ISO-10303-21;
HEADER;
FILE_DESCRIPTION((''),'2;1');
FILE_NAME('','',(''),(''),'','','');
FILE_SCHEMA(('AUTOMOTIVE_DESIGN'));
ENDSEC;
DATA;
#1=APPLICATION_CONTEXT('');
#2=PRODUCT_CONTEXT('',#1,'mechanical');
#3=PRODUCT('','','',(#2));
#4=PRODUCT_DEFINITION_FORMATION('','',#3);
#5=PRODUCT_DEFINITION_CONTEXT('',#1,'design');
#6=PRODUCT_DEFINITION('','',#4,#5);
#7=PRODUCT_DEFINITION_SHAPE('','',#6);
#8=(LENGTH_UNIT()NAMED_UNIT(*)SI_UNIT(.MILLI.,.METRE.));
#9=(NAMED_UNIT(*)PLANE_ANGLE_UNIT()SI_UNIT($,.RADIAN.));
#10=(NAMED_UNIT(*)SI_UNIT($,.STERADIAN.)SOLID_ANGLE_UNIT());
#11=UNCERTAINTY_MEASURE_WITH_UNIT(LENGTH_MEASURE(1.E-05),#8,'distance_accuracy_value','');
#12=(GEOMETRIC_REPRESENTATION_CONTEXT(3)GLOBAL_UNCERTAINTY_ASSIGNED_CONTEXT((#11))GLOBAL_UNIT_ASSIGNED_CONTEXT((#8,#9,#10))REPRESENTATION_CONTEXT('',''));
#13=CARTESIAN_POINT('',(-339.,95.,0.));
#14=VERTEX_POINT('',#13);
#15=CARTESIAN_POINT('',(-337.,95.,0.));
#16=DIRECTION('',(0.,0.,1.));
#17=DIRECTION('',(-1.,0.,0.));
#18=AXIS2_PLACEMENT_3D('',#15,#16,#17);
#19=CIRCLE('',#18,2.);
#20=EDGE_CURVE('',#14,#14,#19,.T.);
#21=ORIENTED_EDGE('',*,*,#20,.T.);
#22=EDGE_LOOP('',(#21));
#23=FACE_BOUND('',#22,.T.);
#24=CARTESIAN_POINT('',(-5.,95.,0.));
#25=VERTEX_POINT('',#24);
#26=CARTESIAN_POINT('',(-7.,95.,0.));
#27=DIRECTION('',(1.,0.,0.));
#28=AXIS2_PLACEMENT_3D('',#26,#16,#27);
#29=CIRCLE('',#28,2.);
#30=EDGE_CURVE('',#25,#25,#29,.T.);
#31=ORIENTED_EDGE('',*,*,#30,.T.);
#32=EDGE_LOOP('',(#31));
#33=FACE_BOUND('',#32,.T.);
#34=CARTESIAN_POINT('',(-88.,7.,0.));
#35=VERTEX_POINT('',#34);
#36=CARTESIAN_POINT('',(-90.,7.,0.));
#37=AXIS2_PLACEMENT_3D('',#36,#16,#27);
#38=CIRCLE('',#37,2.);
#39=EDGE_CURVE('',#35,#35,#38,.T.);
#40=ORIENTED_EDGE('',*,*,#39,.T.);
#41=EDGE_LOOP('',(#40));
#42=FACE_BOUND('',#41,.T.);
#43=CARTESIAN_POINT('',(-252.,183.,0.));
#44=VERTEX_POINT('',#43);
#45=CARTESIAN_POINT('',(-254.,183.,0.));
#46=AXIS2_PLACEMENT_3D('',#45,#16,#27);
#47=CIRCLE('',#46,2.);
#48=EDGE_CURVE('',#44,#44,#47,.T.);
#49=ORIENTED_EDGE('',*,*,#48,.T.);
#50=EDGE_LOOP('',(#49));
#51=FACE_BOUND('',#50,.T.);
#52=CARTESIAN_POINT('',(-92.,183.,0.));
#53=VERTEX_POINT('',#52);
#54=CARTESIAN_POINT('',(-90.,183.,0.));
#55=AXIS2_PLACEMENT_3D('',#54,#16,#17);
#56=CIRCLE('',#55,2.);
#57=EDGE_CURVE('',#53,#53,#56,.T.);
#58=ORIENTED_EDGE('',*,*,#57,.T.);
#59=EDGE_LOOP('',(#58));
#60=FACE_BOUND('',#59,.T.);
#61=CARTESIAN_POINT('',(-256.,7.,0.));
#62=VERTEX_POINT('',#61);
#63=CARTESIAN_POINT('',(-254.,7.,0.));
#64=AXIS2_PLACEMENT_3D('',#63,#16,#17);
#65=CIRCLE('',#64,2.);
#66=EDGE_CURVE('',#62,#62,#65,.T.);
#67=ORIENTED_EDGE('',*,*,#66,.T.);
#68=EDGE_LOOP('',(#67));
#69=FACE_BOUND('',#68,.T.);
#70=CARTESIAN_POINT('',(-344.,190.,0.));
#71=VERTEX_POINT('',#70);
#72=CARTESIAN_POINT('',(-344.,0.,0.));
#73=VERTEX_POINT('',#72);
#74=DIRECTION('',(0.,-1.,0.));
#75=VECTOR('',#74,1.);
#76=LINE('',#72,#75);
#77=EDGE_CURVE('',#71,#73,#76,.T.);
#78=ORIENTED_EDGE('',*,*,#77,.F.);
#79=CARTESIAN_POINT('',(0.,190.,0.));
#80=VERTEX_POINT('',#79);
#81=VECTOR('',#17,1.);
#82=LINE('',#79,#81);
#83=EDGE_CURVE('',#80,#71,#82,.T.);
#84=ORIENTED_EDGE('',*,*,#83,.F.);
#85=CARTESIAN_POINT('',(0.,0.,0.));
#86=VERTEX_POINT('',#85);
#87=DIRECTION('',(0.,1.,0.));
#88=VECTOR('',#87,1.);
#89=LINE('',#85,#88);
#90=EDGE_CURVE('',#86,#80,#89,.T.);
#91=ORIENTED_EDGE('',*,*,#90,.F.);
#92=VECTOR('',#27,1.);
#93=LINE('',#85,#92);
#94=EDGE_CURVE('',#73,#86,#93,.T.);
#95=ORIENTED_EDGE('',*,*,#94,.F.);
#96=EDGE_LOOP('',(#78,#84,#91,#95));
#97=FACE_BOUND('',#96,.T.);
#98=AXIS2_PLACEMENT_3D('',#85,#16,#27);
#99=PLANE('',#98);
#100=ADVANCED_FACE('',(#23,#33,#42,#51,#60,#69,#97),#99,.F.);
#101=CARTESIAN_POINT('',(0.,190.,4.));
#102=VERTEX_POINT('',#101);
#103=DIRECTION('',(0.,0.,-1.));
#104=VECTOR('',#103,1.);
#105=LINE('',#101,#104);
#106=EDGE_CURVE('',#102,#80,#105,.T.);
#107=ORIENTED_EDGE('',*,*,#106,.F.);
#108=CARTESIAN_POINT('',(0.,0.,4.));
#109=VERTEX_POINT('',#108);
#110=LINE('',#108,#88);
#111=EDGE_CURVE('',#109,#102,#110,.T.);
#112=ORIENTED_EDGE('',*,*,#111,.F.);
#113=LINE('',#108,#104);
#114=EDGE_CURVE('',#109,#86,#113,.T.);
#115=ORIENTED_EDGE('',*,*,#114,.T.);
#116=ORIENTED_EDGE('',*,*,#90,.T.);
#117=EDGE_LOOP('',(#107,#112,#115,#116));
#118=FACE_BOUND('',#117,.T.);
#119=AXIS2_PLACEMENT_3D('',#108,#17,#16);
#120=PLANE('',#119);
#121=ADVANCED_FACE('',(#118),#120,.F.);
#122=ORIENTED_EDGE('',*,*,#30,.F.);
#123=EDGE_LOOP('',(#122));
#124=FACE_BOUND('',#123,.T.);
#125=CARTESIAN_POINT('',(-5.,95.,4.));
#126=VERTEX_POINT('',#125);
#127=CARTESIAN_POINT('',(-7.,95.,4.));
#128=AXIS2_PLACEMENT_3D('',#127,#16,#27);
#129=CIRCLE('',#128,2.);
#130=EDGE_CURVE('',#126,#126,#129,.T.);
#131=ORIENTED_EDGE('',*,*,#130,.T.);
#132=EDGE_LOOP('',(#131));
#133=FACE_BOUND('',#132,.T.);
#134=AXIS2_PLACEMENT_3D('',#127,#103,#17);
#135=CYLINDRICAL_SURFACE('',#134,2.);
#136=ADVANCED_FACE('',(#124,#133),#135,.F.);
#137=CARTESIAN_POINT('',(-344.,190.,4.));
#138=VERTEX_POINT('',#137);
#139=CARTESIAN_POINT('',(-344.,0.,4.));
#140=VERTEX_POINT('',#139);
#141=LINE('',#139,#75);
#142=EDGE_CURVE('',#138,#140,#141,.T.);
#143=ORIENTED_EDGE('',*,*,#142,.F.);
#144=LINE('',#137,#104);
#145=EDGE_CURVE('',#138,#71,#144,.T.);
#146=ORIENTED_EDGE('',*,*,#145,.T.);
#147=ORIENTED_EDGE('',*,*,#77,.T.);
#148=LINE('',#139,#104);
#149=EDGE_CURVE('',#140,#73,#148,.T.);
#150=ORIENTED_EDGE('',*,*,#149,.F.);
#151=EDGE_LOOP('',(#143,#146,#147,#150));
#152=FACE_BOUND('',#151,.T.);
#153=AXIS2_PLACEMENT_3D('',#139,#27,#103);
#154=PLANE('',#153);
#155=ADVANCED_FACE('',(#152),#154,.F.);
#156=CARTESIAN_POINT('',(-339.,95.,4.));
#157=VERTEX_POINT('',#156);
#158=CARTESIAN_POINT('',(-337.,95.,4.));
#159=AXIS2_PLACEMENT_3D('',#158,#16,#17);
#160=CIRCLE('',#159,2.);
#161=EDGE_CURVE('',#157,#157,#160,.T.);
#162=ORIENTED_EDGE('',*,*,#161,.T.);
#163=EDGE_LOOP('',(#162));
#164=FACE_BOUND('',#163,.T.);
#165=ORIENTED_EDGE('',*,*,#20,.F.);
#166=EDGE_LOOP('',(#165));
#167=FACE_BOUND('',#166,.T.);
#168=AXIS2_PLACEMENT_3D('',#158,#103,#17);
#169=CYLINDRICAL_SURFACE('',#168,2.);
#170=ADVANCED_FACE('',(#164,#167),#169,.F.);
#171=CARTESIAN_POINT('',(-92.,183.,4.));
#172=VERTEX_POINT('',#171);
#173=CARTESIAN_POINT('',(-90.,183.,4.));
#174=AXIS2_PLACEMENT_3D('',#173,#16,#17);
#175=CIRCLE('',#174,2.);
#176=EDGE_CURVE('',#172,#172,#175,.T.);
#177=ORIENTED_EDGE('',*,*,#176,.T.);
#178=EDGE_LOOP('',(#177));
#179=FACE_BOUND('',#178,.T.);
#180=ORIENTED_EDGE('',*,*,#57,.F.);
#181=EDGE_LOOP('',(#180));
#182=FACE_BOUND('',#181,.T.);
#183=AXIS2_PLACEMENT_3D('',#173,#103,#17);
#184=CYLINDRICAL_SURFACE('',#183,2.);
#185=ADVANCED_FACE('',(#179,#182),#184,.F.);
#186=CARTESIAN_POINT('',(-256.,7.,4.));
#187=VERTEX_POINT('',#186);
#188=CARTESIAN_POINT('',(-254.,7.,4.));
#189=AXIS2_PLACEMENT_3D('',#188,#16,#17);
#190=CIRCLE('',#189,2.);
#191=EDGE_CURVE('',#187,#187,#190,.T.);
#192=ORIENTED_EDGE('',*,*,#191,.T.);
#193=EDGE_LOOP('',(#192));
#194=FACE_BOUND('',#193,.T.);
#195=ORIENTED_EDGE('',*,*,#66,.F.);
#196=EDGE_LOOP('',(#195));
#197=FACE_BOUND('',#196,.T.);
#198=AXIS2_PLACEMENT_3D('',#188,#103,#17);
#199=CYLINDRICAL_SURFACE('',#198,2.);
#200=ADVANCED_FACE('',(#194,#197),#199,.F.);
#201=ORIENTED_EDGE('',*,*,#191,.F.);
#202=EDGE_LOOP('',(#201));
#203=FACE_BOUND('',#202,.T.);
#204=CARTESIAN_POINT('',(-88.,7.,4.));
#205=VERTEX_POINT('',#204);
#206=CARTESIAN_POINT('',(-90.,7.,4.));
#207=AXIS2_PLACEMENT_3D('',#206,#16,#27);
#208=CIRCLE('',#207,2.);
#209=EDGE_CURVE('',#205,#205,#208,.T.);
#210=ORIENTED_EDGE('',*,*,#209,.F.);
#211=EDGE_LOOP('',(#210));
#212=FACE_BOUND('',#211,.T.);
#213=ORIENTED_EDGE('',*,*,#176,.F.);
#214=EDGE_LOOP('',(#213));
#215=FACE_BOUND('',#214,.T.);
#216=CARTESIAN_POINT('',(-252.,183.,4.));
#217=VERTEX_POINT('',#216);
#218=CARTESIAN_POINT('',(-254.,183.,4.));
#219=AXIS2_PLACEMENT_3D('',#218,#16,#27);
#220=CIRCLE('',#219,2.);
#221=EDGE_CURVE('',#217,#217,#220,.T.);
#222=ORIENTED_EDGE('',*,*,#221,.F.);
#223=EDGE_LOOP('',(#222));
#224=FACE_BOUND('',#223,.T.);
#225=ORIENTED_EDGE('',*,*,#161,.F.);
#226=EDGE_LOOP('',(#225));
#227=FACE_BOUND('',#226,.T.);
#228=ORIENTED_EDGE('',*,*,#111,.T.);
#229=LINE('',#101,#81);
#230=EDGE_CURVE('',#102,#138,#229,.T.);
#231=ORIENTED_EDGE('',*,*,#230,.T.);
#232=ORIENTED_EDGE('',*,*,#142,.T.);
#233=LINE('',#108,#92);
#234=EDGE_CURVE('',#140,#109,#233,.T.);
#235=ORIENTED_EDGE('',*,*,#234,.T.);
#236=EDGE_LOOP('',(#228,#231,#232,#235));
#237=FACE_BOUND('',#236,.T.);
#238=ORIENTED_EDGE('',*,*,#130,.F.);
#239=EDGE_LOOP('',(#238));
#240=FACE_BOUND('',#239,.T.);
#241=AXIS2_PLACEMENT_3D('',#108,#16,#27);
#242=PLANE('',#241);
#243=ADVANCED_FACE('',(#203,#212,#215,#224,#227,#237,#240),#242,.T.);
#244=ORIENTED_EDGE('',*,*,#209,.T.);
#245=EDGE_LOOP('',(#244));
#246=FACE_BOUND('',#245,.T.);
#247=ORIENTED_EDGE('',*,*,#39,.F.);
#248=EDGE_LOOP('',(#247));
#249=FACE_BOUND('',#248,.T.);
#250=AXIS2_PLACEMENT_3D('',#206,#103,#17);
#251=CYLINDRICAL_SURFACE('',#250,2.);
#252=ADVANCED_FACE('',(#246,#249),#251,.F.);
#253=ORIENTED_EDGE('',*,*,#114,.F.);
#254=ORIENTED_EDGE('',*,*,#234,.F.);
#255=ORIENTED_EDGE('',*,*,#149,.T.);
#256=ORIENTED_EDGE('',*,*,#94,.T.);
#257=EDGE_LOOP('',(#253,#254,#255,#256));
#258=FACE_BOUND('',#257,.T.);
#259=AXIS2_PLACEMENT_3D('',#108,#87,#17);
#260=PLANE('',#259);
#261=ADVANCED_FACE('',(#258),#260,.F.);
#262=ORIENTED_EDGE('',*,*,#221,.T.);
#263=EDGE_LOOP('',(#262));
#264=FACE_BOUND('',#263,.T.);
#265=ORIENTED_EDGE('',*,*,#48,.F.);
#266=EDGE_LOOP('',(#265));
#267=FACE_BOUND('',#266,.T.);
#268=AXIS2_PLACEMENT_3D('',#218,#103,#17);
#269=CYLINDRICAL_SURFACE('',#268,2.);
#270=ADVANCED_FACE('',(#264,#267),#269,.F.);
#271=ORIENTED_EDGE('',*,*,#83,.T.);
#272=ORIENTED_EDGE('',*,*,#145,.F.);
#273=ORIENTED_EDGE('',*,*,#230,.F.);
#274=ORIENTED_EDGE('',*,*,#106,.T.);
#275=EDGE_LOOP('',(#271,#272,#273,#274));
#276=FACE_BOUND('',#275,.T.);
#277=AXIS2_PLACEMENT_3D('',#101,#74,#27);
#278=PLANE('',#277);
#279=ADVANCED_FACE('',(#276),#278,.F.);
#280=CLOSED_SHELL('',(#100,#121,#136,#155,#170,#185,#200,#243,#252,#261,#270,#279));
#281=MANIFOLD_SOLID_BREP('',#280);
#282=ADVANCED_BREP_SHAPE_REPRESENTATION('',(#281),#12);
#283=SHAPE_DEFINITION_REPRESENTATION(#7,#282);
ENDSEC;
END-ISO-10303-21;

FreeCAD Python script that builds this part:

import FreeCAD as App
import Part
import Sketcher
from FreeCAD import Vector

doc = App.newDocument("Part")
params = doc.addObject("Spreadsheet::Sheet", "Params")
for row, (alias, value) in enumerate([
    ("sketch1_diameter", "4 mm"),
    ("sketch1_width", "344 mm"),
    ("sketch1_height", "190 mm"),
    ("pad1_length", "4 mm"),
], start=1):
    params.set(f"A{row}", alias)
    params.set(f"B{row}", "=" + value)
    params.setAlias(f"B{row}", alias)

body = doc.addObject("PartDesign::Body", "Body")

sketch1 = doc.addObject("Sketcher::SketchObject", "Sketch")
body.addObject(sketch1)
sketch1.AttachmentSupport = (doc.XY_Plane, [""])
sketch1.MapMode = "FlatFace"
sketch1.addGeometry([
    Part.LineSegment(Vector(-344, 190, 0), Vector(-344, 0, 0)),
    Part.LineSegment(Vector(-344, 0, 0), Vector(0, 0, 0)),
    Part.LineSegment(Vector(0, 0, 0), Vector(0, 190, 0)),
    Part.LineSegment(Vector(0, 190, 0), Vector(-344, 190, 0)),
    Part.Circle(Vector(-254, 7, 0), Vector(0, 0, 1), 2),
    Part.Circle(Vector(-90, 7, 0), Vector(0, 0, 1), 2),
    Part.Circle(Vector(-337, 95, 0), Vector(0, 0, 1), 2),
    Part.Circle(Vector(-254, 183, 0), Vector(0, 0, 1), 2),
    Part.Circle(Vector(-7, 95, 0), Vector(0, 0, 1), 2),
    Part.Circle(Vector(-90, 183, 0), Vector(0, 0, 1), 2),
], False)
sketch1.addConstraint([
    Sketcher.Constraint("Coincident", 0, 2, 1, 1),
    Sketcher.Constraint("Coincident", 1, 2, 2, 1),
    Sketcher.Constraint("Coincident", 2, 2, 3, 1),
    Sketcher.Constraint("Coincident", 3, 2, 0, 1),
    Sketcher.Constraint("Vertical", 0),
    Sketcher.Constraint("Horizontal", 1),
    Sketcher.Constraint("Vertical", 2),
    Sketcher.Constraint("Horizontal", 3),
    Sketcher.Constraint("Coincident", 1, 2, -1, 1),
    Sketcher.Constraint("Equal", 4, 5),
    Sketcher.Constraint("Equal", 5, 6),
    Sketcher.Constraint("Equal", 6, 7),
    Sketcher.Constraint("Equal", 7, 8),
    Sketcher.Constraint("Equal", 8, 9),
    Sketcher.Constraint("Horizontal", 4, 3, 5, 3),
    Sketcher.Constraint("Horizontal", 6, 3, 8, 3),
    Sketcher.Constraint("Horizontal", 7, 3, 9, 3),
    Sketcher.Constraint("Vertical", 4, 3, 7, 3),
    Sketcher.Constraint("Vertical", 5, 3, 9, 3),
    Sketcher.Constraint("Diameter", 4, 4.0),
    Sketcher.Constraint("DistanceX", 1, 1, 1, 2, 344.0),
    Sketcher.Constraint("DistanceY", 0, 2, 0, 1, 190.0),
    Sketcher.Constraint("DistanceX", 4, 3, -1, 1, 254.0),
    Sketcher.Constraint("DistanceY", -1, 1, 4, 3, 7.0),
    Sketcher.Constraint("DistanceX", 5, 3, -1, 1, 90.0),
    Sketcher.Constraint("DistanceX", 6, 3, -1, 1, 337.0),
    Sketcher.Constraint("DistanceY", -1, 1, 6, 3, 95.0),
    Sketcher.Constraint("DistanceY", -1, 1, 7, 3, 183.0),
    Sketcher.Constraint("DistanceX", 8, 3, -1, 1, 7.0),
])
sketch1.setExpression("Constraints[19]", "Params.sketch1_diameter")
sketch1.setExpression("Constraints[20]", "Params.sketch1_width")
sketch1.setExpression("Constraints[21]", "Params.sketch1_height")
pad1 = doc.addObject("PartDesign::Pad", "Pad")
body.addObject(pad1)
pad1.Profile = sketch1
pad1.setExpression("Length", "Params.pad1_length")

doc.recompute()
